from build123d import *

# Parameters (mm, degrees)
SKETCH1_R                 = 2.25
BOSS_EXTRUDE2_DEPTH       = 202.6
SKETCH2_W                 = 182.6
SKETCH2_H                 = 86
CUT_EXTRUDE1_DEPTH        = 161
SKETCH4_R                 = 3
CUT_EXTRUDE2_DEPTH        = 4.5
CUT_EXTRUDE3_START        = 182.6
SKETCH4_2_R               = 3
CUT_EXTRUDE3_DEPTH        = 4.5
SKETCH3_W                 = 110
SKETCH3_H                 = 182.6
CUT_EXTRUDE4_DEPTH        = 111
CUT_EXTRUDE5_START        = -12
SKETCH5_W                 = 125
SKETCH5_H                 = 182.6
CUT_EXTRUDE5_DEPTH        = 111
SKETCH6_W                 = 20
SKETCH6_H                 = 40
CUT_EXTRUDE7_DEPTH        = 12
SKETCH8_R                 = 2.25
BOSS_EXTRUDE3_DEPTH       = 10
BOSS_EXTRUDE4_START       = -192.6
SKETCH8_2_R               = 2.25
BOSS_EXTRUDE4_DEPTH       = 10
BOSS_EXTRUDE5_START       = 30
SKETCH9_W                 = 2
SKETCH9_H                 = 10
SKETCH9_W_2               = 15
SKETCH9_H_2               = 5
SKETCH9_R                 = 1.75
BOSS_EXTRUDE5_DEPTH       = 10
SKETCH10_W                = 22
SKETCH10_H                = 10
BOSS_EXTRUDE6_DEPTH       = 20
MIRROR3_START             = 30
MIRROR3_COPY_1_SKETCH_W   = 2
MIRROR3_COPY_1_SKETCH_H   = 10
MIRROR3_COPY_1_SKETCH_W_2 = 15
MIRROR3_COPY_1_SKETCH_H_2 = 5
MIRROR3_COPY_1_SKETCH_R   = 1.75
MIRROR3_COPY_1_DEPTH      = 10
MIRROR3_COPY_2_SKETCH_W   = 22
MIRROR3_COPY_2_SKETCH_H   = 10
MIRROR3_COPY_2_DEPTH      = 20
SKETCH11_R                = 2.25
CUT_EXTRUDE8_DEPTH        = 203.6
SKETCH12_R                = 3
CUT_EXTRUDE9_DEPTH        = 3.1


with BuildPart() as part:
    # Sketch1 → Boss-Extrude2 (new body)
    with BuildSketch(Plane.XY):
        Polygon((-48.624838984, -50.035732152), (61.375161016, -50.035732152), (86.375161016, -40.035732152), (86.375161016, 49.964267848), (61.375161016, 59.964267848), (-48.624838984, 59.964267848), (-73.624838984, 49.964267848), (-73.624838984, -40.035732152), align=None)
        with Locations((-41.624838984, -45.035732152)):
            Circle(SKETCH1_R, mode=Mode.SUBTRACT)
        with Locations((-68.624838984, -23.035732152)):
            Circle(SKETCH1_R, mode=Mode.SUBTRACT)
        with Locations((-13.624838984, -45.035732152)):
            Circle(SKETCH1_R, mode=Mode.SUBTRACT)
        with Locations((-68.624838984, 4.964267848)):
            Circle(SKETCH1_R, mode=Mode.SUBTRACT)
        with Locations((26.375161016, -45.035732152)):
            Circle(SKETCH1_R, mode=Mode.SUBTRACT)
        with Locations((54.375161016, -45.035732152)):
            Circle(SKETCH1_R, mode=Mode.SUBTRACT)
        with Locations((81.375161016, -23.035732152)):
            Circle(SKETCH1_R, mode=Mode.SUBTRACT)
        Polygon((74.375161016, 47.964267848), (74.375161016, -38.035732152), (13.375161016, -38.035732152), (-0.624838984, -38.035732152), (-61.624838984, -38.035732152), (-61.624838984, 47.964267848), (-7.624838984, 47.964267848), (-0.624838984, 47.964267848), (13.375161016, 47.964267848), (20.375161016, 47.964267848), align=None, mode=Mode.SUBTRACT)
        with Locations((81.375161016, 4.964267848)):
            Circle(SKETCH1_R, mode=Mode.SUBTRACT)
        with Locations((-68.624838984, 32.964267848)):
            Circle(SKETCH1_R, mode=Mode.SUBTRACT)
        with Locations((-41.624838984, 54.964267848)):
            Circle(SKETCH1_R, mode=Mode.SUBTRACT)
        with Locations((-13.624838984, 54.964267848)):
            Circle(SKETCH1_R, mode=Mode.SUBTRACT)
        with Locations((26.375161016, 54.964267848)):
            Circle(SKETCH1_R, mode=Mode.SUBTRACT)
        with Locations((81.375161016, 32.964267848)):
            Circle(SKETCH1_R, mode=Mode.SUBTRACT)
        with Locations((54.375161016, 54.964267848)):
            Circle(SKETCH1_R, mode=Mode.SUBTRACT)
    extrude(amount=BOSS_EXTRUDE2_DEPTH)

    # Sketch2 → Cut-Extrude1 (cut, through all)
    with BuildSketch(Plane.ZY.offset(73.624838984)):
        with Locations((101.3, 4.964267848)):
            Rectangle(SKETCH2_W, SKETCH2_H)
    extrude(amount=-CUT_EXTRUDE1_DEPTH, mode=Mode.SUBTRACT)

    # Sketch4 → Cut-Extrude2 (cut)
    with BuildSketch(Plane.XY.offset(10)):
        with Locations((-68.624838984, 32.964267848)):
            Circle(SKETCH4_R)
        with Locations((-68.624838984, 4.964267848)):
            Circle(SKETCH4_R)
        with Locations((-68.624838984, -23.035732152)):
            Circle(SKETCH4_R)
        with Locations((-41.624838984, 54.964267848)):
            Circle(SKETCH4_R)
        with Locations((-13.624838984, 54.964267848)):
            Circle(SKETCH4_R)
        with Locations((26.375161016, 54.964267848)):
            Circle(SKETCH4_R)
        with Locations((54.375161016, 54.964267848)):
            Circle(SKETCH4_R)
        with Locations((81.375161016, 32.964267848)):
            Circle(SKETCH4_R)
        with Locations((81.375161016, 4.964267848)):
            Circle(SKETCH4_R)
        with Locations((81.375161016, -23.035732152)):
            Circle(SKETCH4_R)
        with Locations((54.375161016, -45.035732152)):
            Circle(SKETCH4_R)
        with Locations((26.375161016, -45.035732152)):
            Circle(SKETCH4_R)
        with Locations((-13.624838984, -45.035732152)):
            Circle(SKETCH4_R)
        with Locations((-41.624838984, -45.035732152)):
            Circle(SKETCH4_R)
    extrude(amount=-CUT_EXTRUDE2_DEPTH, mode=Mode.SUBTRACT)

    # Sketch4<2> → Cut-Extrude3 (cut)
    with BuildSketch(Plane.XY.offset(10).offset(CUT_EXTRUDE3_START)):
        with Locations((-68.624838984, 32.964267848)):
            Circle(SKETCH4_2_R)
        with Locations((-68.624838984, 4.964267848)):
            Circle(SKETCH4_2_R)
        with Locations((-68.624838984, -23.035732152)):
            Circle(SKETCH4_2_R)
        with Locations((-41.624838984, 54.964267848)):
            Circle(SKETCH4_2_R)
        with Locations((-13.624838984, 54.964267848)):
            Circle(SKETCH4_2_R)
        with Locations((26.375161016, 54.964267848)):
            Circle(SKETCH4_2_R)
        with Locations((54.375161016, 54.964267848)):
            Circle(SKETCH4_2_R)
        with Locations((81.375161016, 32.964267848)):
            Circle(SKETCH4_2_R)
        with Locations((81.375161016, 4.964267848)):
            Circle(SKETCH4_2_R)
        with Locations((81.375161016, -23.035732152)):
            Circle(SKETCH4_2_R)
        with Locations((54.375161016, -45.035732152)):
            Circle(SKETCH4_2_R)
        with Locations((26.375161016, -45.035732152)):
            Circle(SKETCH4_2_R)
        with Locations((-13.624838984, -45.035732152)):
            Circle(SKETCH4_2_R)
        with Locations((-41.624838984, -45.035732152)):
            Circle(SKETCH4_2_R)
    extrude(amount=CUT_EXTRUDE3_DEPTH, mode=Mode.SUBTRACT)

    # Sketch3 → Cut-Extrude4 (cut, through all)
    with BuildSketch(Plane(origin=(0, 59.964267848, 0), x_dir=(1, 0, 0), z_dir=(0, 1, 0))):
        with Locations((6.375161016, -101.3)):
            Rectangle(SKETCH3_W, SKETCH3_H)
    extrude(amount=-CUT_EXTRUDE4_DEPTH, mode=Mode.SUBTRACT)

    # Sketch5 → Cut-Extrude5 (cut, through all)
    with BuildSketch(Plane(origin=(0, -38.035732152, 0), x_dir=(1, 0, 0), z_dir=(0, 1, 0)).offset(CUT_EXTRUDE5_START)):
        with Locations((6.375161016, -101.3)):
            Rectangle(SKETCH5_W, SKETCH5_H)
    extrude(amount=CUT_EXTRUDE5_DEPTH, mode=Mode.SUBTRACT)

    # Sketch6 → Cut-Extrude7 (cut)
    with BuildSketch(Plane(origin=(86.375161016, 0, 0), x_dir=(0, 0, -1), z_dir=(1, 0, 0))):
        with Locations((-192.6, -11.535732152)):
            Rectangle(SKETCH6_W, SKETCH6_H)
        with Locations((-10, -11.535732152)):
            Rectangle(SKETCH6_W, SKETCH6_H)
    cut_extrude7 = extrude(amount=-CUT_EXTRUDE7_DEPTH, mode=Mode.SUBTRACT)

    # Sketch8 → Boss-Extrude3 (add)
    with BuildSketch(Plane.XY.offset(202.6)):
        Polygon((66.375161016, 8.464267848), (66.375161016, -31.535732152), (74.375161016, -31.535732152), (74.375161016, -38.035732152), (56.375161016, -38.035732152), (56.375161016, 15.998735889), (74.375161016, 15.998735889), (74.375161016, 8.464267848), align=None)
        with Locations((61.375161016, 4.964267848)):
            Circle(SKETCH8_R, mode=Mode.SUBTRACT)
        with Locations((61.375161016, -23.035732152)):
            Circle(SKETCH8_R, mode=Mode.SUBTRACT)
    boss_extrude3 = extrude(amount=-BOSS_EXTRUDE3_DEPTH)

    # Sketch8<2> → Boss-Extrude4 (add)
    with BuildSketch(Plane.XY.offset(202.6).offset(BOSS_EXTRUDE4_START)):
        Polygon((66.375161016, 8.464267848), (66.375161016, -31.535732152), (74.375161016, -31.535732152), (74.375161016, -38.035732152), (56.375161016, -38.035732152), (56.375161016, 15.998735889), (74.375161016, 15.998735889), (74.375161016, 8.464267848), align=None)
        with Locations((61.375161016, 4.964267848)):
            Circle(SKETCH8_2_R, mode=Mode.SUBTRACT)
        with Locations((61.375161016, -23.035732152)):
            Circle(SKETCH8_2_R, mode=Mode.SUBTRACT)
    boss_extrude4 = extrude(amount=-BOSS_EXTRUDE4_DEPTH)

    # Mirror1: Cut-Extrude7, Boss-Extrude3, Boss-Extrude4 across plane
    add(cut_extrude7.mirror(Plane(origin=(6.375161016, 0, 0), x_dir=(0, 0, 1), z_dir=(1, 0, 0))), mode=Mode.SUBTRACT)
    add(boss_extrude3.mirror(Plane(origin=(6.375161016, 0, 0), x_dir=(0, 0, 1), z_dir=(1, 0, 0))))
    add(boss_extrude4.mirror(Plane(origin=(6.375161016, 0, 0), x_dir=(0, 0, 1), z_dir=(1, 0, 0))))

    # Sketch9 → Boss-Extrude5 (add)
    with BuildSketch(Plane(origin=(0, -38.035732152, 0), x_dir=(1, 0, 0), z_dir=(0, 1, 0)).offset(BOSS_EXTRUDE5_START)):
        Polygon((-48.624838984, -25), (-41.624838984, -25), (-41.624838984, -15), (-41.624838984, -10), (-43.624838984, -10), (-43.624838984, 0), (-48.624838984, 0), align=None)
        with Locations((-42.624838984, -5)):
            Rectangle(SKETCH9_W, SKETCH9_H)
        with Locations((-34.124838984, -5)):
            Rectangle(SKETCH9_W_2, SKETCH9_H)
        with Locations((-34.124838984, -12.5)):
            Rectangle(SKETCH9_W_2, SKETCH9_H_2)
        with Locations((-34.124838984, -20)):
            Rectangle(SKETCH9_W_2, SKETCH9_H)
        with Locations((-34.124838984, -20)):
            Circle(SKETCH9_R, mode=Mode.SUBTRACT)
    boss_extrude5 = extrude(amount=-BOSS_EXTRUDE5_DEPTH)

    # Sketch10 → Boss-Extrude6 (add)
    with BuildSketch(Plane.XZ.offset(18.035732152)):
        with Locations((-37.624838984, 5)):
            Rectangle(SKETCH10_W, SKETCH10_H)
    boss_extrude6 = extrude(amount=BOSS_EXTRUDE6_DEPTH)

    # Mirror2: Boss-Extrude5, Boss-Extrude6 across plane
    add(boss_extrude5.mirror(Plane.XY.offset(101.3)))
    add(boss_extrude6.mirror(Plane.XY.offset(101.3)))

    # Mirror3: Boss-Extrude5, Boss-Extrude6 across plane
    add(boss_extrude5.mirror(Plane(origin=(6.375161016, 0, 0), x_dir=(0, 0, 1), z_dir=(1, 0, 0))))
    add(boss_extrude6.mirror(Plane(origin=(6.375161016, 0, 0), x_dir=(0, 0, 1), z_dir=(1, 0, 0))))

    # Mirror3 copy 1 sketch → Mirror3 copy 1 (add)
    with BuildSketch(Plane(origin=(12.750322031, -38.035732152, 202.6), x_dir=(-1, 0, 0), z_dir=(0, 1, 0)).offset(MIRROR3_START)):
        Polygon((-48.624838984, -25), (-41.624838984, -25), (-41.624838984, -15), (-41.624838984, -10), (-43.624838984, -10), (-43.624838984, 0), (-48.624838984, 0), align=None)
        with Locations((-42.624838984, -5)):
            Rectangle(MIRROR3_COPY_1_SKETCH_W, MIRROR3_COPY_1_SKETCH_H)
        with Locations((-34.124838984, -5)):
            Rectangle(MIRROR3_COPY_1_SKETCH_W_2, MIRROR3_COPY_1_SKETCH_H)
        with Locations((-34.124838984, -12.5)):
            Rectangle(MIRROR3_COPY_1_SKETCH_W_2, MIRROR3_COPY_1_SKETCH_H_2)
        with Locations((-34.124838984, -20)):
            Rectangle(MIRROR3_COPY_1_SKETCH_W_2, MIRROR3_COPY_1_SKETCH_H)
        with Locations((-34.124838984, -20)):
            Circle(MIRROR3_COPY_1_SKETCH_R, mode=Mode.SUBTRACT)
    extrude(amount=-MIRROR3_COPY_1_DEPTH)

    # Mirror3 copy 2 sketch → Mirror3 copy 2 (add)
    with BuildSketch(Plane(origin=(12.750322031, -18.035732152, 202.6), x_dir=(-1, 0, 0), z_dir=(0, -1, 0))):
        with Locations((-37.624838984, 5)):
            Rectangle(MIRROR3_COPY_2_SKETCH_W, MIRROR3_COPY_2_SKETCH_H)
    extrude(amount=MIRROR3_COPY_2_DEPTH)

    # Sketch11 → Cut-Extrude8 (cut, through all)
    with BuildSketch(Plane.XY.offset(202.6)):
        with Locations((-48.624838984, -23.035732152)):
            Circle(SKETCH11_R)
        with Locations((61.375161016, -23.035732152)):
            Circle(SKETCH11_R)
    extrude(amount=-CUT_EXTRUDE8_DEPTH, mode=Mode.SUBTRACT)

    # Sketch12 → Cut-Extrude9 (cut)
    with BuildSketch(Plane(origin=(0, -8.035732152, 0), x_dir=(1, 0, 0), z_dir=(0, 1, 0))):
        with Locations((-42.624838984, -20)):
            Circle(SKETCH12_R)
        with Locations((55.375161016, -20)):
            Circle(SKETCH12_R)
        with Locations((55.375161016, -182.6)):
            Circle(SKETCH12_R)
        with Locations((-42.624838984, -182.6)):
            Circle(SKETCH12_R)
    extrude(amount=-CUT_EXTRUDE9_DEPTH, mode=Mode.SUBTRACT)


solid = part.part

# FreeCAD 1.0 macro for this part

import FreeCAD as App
import Part
import Sketcher
from FreeCAD import Vector

doc = App.newDocument("Part")
body = doc.addObject("PartDesign::Body", "Body")

# Sketch on XY plane
sketch1 = body.newObject("Sketcher::SketchObject", "Sketch")
sketch1.AttachmentSupport = (doc.getObject("XY_Plane"), [""])
sketch1.MapMode = "FlatFace"
sketch1.addGeometry([
    Part.LineSegment(Vector(-48.624839, -50.035732, 0), Vector(61.375161, -50.035732, 0)),  # 0
    Part.LineSegment(Vector(61.375161, -50.035732, 0), Vector(86.375161, -40.035732, 0)),  # 1
    Part.LineSegment(Vector(86.375161, -40.035732, 0), Vector(86.375161, 49.964268, 0)),  # 2
    Part.LineSegment(Vector(86.375161, 49.964268, 0), Vector(61.375161, 59.964268, 0)),  # 3
    Part.LineSegment(Vector(61.375161, 59.964268, 0), Vector(-48.624839, 59.964268, 0)),  # 4
    Part.LineSegment(Vector(-48.624839, 59.964268, 0), Vector(-73.624839, 49.964268, 0)),  # 5
    Part.LineSegment(Vector(-73.624839, 49.964268, 0), Vector(-73.624839, -40.035732, 0)),  # 6
    Part.LineSegment(Vector(-73.624839, -40.035732, 0), Vector(-48.624839, -50.035732, 0)),  # 7
    Part.Circle(Vector(-41.624839, -45.035732, 0), Vector(0, 0, 1), 2.25),  # 8
    Part.Circle(Vector(-68.624839, -23.035732, 0), Vector(0, 0, 1), 2.25),  # 9
    Part.Circle(Vector(-13.624839, -45.035732, 0), Vector(0, 0, 1), 2.25),  # 10
    Part.Circle(Vector(26.375161, -45.035732, 0), Vector(0, 0, 1), 2.25),  # 11
    Part.Circle(Vector(54.375161, -45.035732, 0), Vector(0, 0, 1), 2.25),  # 12
    Part.Circle(Vector(81.375161, -23.035732, 0), Vector(0, 0, 1), 2.25),  # 13
    Part.Circle(Vector(-68.624839, 4.964268, 0), Vector(0, 0, 1), 2.25),  # 14
    Part.Circle(Vector(-68.624839, 32.964268, 0), Vector(0, 0, 1), 2.25),  # 15
    Part.Circle(Vector(-41.624839, 54.964268, 0), Vector(0, 0, 1), 2.25),  # 16
    Part.Circle(Vector(-13.624839, 54.964268, 0), Vector(0, 0, 1), 2.25),  # 17
    Part.LineSegment(Vector(-61.624839, 47.964268, 0), Vector(74.375161, 47.964268, 0)),  # 18
    Part.LineSegment(Vector(74.375161, 47.964268, 0), Vector(74.375161, -38.035732, 0)),  # 19
    Part.LineSegment(Vector(74.375161, -38.035732, 0), Vector(-61.624839, -38.035732, 0)),  # 20
    Part.LineSegment(Vector(-61.624839, -38.035732, 0), Vector(-61.624839, 47.964268, 0)),  # 21
    Part.Circle(Vector(81.375161, 4.964268, 0), Vector(0, 0, 1), 2.25),  # 22
    Part.Circle(Vector(26.375161, 54.964268, 0), Vector(0, 0, 1), 2.25),  # 23
    Part.Circle(Vector(81.375161, 32.964268, 0), Vector(0, 0, 1), 2.25),  # 24
    Part.Circle(Vector(54.375161, 54.964268, 0), Vector(0, 0, 1), 2.25),  # 25
], False)
sketch1.addConstraint([
    Sketcher.Constraint("Coincident", 0, 2, 1, 1),
    Sketcher.Constraint("Coincident", 1, 2, 2, 1),
    Sketcher.Constraint("Coincident", 2, 2, 3, 1),
    Sketcher.Constraint("Coincident", 3, 2, 4, 1),
    Sketcher.Constraint("Coincident", 4, 2, 5, 1),
    Sketcher.Constraint("Coincident", 5, 2, 6, 1),
    Sketcher.Constraint("Coincident", 6, 2, 7, 1),
    Sketcher.Constraint("Coincident", 7, 2, 0, 1),
    Sketcher.Constraint("Coincident", 18, 2, 19, 1),
    Sketcher.Constraint("Coincident", 19, 2, 20, 1),
    Sketcher.Constraint("Coincident", 20, 2, 21, 1),
    Sketcher.Constraint("Coincident", 21, 2, 18, 1),
    Sketcher.Constraint("Horizontal", 0),
    Sketcher.Constraint("Vertical", 2),
    Sketcher.Constraint("Horizontal", 4),
    Sketcher.Constraint("Vertical", 6),
    Sketcher.Constraint("Horizontal", 18),
    Sketcher.Constraint("Vertical", 19),
    Sketcher.Constraint("Horizontal", 20),
    Sketcher.Constraint("Vertical", 21),
    Sketcher.Constraint("Equal", 8, 9),
    Sketcher.Constraint("Equal", 9, 10),
    Sketcher.Constraint("Equal", 10, 11),
    Sketcher.Constraint("Equal", 11, 12),
    Sketcher.Constraint("Equal", 12, 13),
    Sketcher.Constraint("Equal", 13, 14),
    Sketcher.Constraint("Equal", 14, 15),
    Sketcher.Constraint("Equal", 15, 16),
    Sketcher.Constraint("Equal", 16, 17),
    Sketcher.Constraint("Equal", 17, 22),
    Sketcher.Constraint("Equal", 22, 23),
    Sketcher.Constraint("Equal", 23, 24),
    Sketcher.Constraint("Equal", 24, 25),
    Sketcher.Constraint("Parallel", 1, 5),
    Sketcher.Constraint("Parallel", 3, 7),
    Sketcher.Constraint("Horizontal", 8, 3, 10, 3),
    Sketcher.Constraint("Horizontal", 10, 3, 11, 3),
    Sketcher.Constraint("Horizontal", 11, 3, 12, 3),
    Sketcher.Constraint("Horizontal", 9, 3, 13, 3),
    Sketcher.Constraint("Horizontal", 16, 3, 17, 3),
    Sketcher.Constraint("Horizontal", 14, 3, 22, 3),
    Sketcher.Constraint("Horizontal", 17, 3, 23, 3),
    Sketcher.Constraint("Horizontal", 15, 3, 24, 3),
    Sketcher.Constraint("Horizontal", 23, 3, 25, 3),
    Sketcher.Constraint("Horizontal", 2, 2, 5, 2),
    Sketcher.Constraint("Horizontal", 1, 2, 6, 2),
    Sketcher.Constraint("Vertical", 9, 3, 14, 3),
    Sketcher.Constraint("Vertical", 14, 3, 15, 3),
    Sketcher.Constraint("Vertical", 8, 3, 16, 3),
    Sketcher.Constraint("Vertical", 10, 3, 17, 3),
    Sketcher.Constraint("Vertical", 13, 3, 22, 3),
    Sketcher.Constraint("Vertical", 11, 3, 23, 3),
    Sketcher.Constraint("Vertical", 22, 3, 24, 3),
    Sketcher.Constraint("Vertical", 12, 3, 25, 3),
    Sketcher.Constraint("Vertical", 0, 2, 3, 2),
    Sketcher.Constraint("Vertical", 4, 2, 7, 2),
    Sketcher.Constraint("Diameter", 8, 4.5),
    Sketcher.Constraint("DistanceX", 0, 1, 0, 2, 110.0),
    Sketcher.Constraint("DistanceX", 18, 1, 18, 2, 136.0),
    Sketcher.Constraint("DistanceY", 2, 1, 2, 2, 90.0),
    Sketcher.Constraint("DistanceY", 19, 2, 19, 1, 86.0),
    Sketcher.Constraint("DistanceX", 9, 3, 8, 3, 27.0),
    Sketcher.Constraint("DistanceY", 8, 3, 9, 3, 22.0),
    Sketcher.Constraint("DistanceX", 8, 3, 10, 3, 28.0),
    Sketcher.Constraint("DistanceX", 10, 3, 11, 3, 40.0),
    Sketcher.Constraint("DistanceX", 11, 3, 12, 3, 28.0),
    Sketcher.Constraint("DistanceX", 12, 3, 13, 3, 27.0),
    Sketcher.Constraint("DistanceY", 9, 3, 14, 3, 28.0),
    Sketcher.Constraint("DistanceY", 14, 3, 15, 3, 28.0),
    Sketcher.Constraint("DistanceY", 15, 3, 16, 3, 22.0),
    Sketcher.Constraint("DistanceX", 12, 3, 0, 2, 7.0),
    Sketcher.Constraint("DistanceY", 0, 2, 12, 3, 5.0),
    Sketcher.Constraint("DistanceX", 13, 3, 1, 2, 5.0),
    Sketcher.Constraint("DistanceY", 1, 2, 13, 3, 17.0),
    Sketcher.Constraint("DistanceX", 18, 2, 2, 2, 12.0),
    Sketcher.Constraint("DistanceY", 18, 2, 2, 2, 2.0),
    Sketcher.Constraint("DistanceX", 8, 3, -1, 1, 41.624839),
    Sketcher.Constraint("DistanceY", 8, 3, -1, 1, 45.035732),
])
pad1 = body.newObject("PartDesign::Pad", "Pad")
pad1.Profile = sketch1
pad1.Length = 202.6

# Sketch on YZ plane
sketch2 = body.newObject("Sketcher::SketchObject", "Sketch001")
sketch2.AttachmentSupport = (doc.getObject("YZ_Plane"), [""])
sketch2.MapMode = "FlatFace"
sketch2.AttachmentOffset = App.Placement(Vector(0, 0, -73.624839), App.Rotation())
sketch2.addGeometry([
    Part.LineSegment(Vector(47.964268, 10, 0), Vector(-38.035732, 10, 0)),
    Part.LineSegment(Vector(-38.035732, 10, 0), Vector(-38.035732, 192.6, 0)),
    Part.LineSegment(Vector(-38.035732, 192.6, 0), Vector(47.964268, 192.6, 0)),
    Part.LineSegment(Vector(47.964268, 192.6, 0), Vector(47.964268, 10, 0)),
], False)
sketch2.addConstraint([
    Sketcher.Constraint("Coincident", 0, 2, 1, 1),
    Sketcher.Constraint("Coincident", 1, 2, 2, 1),
    Sketcher.Constraint("Coincident", 2, 2, 3, 1),
    Sketcher.Constraint("Coincident", 3, 2, 0, 1),
    Sketcher.Constraint("Horizontal", 0),
    Sketcher.Constraint("Vertical", 1),
    Sketcher.Constraint("Horizontal", 2),
    Sketcher.Constraint("Vertical", 3),
    Sketcher.Constraint("DistanceX", 0, 2, 0, 1, 86.0),
    Sketcher.Constraint("DistanceY", 1, 1, 1, 2, 182.6),
    Sketcher.Constraint("DistanceY", -1, 1, 0, 2, 10.0),
    Sketcher.Constraint("DistanceX", 0, 2, -1, 1, 38.035732),
])
pocket1 = body.newObject("PartDesign::Pocket", "Pocket")
pocket1.Profile = sketch2
pocket1.Type = "ThroughAll"
pocket1.Reversed = True

# Sketch on XY plane
sketch3 = body.newObject("Sketcher::SketchObject", "Sketch002")
sketch3.AttachmentSupport = (doc.getObject("XY_Plane"), [""])
sketch3.MapMode = "FlatFace"
sketch3.AttachmentOffset = App.Placement(Vector(0, 0, 10), App.Rotation())
sketch3.addGeometry([
    Part.Circle(Vector(-68.624839, 32.964268, 0), Vector(0, 0, 1), 3),  # 0
    Part.Circle(Vector(-68.624839, 4.964268, 0), Vector(0, 0, 1), 3),  # 1
    Part.Circle(Vector(-68.624839, -23.035732, 0), Vector(0, 0, 1), 3),  # 2
    Part.Circle(Vector(-41.624839, 54.964268, 0), Vector(0, 0, 1), 3),  # 3
    Part.Circle(Vector(-13.624839, 54.964268, 0), Vector(0, 0, 1), 3),  # 4
    Part.Circle(Vector(26.375161, 54.964268, 0), Vector(0, 0, 1), 3),  # 5
    Part.Circle(Vector(54.375161, 54.964268, 0), Vector(0, 0, 1), 3),  # 6
    Part.Circle(Vector(81.375161, 32.964268, 0), Vector(0, 0, 1), 3),  # 7
    Part.Circle(Vector(81.375161, 4.964268, 0), Vector(0, 0, 1), 3),  # 8
    Part.Circle(Vector(81.375161, -23.035732, 0), Vector(0, 0, 1), 3),  # 9
    Part.Circle(Vector(54.375161, -45.035732, 0), Vector(0, 0, 1), 3),  # 10
    Part.Circle(Vector(26.375161, -45.035732, 0), Vector(0, 0, 1), 3),  # 11
    Part.Circle(Vector(-13.624839, -45.035732, 0), Vector(0, 0, 1), 3),  # 12
    Part.Circle(Vector(-41.624839, -45.035732, 0), Vector(0, 0, 1), 3),  # 13
], False)
sketch3.addConstraint([
    Sketcher.Constraint("Equal", 0, 1),
    Sketcher.Constraint("Equal", 1, 2),
    Sketcher.Constraint("Equal", 2, 3),
    Sketcher.Constraint("Equal", 3, 4),
    Sketcher.Constraint("Equal", 4, 5),
    Sketcher.Constraint("Equal", 5, 6),
    Sketcher.Constraint("Equal", 6, 7),
    Sketcher.Constraint("Equal", 7, 8),
    Sketcher.Constraint("Equal", 8, 9),
    Sketcher.Constraint("Equal", 9, 10),
    Sketcher.Constraint("Equal", 10, 11),
    Sketcher.Constraint("Equal", 11, 12),
    Sketcher.Constraint("Equal", 12, 13),
    Sketcher.Constraint("Horizontal", 3, 3, 4, 3),
    Sketcher.Constraint("Horizontal", 4, 3, 5, 3),
    Sketcher.Constraint("Horizontal", 5, 3, 6, 3),
    Sketcher.Constraint("Horizontal", 0, 3, 7, 3),
    Sketcher.Constraint("Horizontal", 1, 3, 8, 3),
    Sketcher.Constraint("Horizontal", 2, 3, 9, 3),
    Sketcher.Constraint("Horizontal", 10, 3, 11, 3),
    Sketcher.Constraint("Horizontal", 11, 3, 12, 3),
    Sketcher.Constraint("Horizontal", 12, 3, 13, 3),
    Sketcher.Constraint("Vertical", 0, 3, 1, 3),
    Sketcher.Constraint("Vertical", 1, 3, 2, 3),
    Sketcher.Constraint("Vertical", 7, 3, 8, 3),
    Sketcher.Constraint("Vertical", 8, 3, 9, 3),
    Sketcher.Constraint("Vertical", 6, 3, 10, 3),
    Sketcher.Constraint("Vertical", 5, 3, 11, 3),
    Sketcher.Constraint("Vertical", 4, 3, 12, 3),
    Sketcher.Constraint("Vertical", 3, 3, 13, 3),
    Sketcher.Constraint("Diameter", 0, 6.0),
    Sketcher.Constraint("DistanceY", 1, 3, 0, 3, 28.0),
    Sketcher.Constraint("DistanceY", 2, 3, 1, 3, 28.0),
    Sketcher.Constraint("DistanceX", 0, 3, 3, 3, 27.0),
    Sketcher.Constraint("DistanceY", 0, 3, 3, 3, 22.0),
    Sketcher.Constraint("DistanceX", 3, 3, 4, 3, 28.0),
    Sketcher.Constraint("DistanceX", 4, 3, 5, 3, 40.0),
    Sketcher.Constraint("DistanceX", 5, 3, 6, 3, 28.0),
    Sketcher.Constraint("DistanceX", 6, 3, 7, 3, 27.0),
    Sketcher.Constraint("DistanceY", 10, 3, 9, 3, 22.0),
    Sketcher.Constraint("DistanceX", 0, 3, -1, 1, 68.624839),
    Sketcher.Constraint("DistanceY", -1, 1, 0, 3, 32.964268),
])
pocket2 = body.newObject("PartDesign::Pocket", "Pocket001")
pocket2.Profile = sketch3
pocket2.Length = 4.5

# Sketch on XY plane
sketch4 = body.newObject("Sketcher::SketchObject", "Sketch003")
sketch4.AttachmentSupport = (doc.getObject("XY_Plane"), [""])
sketch4.MapMode = "FlatFace"
sketch4.AttachmentOffset = App.Placement(Vector(0, 0, 192.6), App.Rotation())
sketch4.addGeometry([
    Part.Circle(Vector(-68.624839, 32.964268, 0), Vector(0, 0, 1), 3),  # 0
    Part.Circle(Vector(-68.624839, 4.964268, 0), Vector(0, 0, 1), 3),  # 1
    Part.Circle(Vector(-68.624839, -23.035732, 0), Vector(0, 0, 1), 3),  # 2
    Part.Circle(Vector(-41.624839, 54.964268, 0), Vector(0, 0, 1), 3),  # 3
    Part.Circle(Vector(-13.624839, 54.964268, 0), Vector(0, 0, 1), 3),  # 4
    Part.Circle(Vector(26.375161, 54.964268, 0), Vector(0, 0, 1), 3),  # 5
    Part.Circle(Vector(54.375161, 54.964268, 0), Vector(0, 0, 1), 3),  # 6
    Part.Circle(Vector(81.375161, 32.964268, 0), Vector(0, 0, 1), 3),  # 7
    Part.Circle(Vector(81.375161, 4.964268, 0), Vector(0, 0, 1), 3),  # 8
    Part.Circle(Vector(81.375161, -23.035732, 0), Vector(0, 0, 1), 3),  # 9
    Part.Circle(Vector(54.375161, -45.035732, 0), Vector(0, 0, 1), 3),  # 10
    Part.Circle(Vector(26.375161, -45.035732, 0), Vector(0, 0, 1), 3),  # 11
    Part.Circle(Vector(-13.624839, -45.035732, 0), Vector(0, 0, 1), 3),  # 12
    Part.Circle(Vector(-41.624839, -45.035732, 0), Vector(0, 0, 1), 3),  # 13
], False)
sketch4.addConstraint([
    Sketcher.Constraint("Equal", 0, 1),
    Sketcher.Constraint("Equal", 1, 2),
    Sketcher.Constraint("Equal", 2, 3),
    Sketcher.Constraint("Equal", 3, 4),
    Sketcher.Constraint("Equal", 4, 5),
    Sketcher.Constraint("Equal", 5, 6),
    Sketcher.Constraint("Equal", 6, 7),
    Sketcher.Constraint("Equal", 7, 8),
    Sketcher.Constraint("Equal", 8, 9),
    Sketcher.Constraint("Equal", 9, 10),
    Sketcher.Constraint("Equal", 10, 11),
    Sketcher.Constraint("Equal", 11, 12),
    Sketcher.Constraint("Equal", 12, 13),
    Sketcher.Constraint("Horizontal", 3, 3, 4, 3),
    Sketcher.Constraint("Horizontal", 4, 3, 5, 3),
    Sketcher.Constraint("Horizontal", 5, 3, 6, 3),
    Sketcher.Constraint("Horizontal", 0, 3, 7, 3),
    Sketcher.Constraint("Horizontal", 1, 3, 8, 3),
    Sketcher.Constraint("Horizontal", 2, 3, 9, 3),
    Sketcher.Constraint("Horizontal", 10, 3, 11, 3),
    Sketcher.Constraint("Horizontal", 11, 3, 12, 3),
    Sketcher.Constraint("Horizontal", 12, 3, 13, 3),
    Sketcher.Constraint("Vertical", 0, 3, 1, 3),
    Sketcher.Constraint("Vertical", 1, 3, 2, 3),
    Sketcher.Constraint("Vertical", 7, 3, 8, 3),
    Sketcher.Constraint("Vertical", 8, 3, 9, 3),
    Sketcher.Constraint("Vertical", 6, 3, 10, 3),
    Sketcher.Constraint("Vertical", 5, 3, 11, 3),
    Sketcher.Constraint("Vertical", 4, 3, 12, 3),
    Sketcher.Constraint("Vertical", 3, 3, 13, 3),
    Sketcher.Constraint("Diameter", 0, 6.0),
    Sketcher.Constraint("DistanceY", 1, 3, 0, 3, 28.0),
    Sketcher.Constraint("DistanceY", 2, 3, 1, 3, 28.0),
    Sketcher.Constraint("DistanceX", 0, 3, 3, 3, 27.0),
    Sketcher.Constraint("DistanceY", 0, 3, 3, 3, 22.0),
    Sketcher.Constraint("DistanceX", 3, 3, 4, 3, 28.0),
    Sketcher.Constraint("DistanceX", 4, 3, 5, 3, 40.0),
    Sketcher.Constraint("DistanceX", 5, 3, 6, 3, 28.0),
    Sketcher.Constraint("DistanceX", 6, 3, 7, 3, 27.0),
    Sketcher.Constraint("DistanceY", 10, 3, 9, 3, 22.0),
    Sketcher.Constraint("DistanceX", 0, 3, -1, 1, 68.624839),
    Sketcher.Constraint("DistanceY", -1, 1, 0, 3, 32.964268),
])
pocket3 = body.newObject("PartDesign::Pocket", "Pocket002")
pocket3.Profile = sketch4
pocket3.Length = 4.5
pocket3.Reversed = True

# Sketch on XZ plane
sketch5 = body.newObject("Sketcher::SketchObject", "Sketch004")
sketch5.AttachmentSupport = (doc.getObject("XZ_Plane"), [""])
sketch5.MapMode = "FlatFace"
sketch5.AttachmentOffset = App.Placement(Vector(0, 0, -59.964268), App.Rotation())
sketch5.addGeometry([
    Part.LineSegment(Vector(-48.624839, 10, 0), Vector(-48.624839, 192.6, 0)),
    Part.LineSegment(Vector(-48.624839, 192.6, 0), Vector(61.375161, 192.6, 0)),
    Part.LineSegment(Vector(61.375161, 192.6, 0), Vector(61.375161, 10, 0)),
    Part.LineSegment(Vector(61.375161, 10, 0), Vector(-48.624839, 10, 0)),
], False)
sketch5.addConstraint([
    Sketcher.Constraint("Coincident", 0, 2, 1, 1),
    Sketcher.Constraint("Coincident", 1, 2, 2, 1),
    Sketcher.Constraint("Coincident", 2, 2, 3, 1),
    Sketcher.Constraint("Coincident", 3, 2, 0, 1),
    Sketcher.Constraint("Vertical", 0),
    Sketcher.Constraint("Horizontal", 1),
    Sketcher.Constraint("Vertical", 2),
    Sketcher.Constraint("Horizontal", 3),
    Sketcher.Constraint("DistanceX", 1, 1, 1, 2, 110.0),
    Sketcher.Constraint("DistanceY", 0, 1, 0, 2, 182.6),
    Sketcher.Constraint("DistanceY", -1, 1, 2, 2, 10.0),
    Sketcher.Constraint("DistanceX", 0, 2, -1, 1, 48.624839),
])
pocket4 = body.newObject("PartDesign::Pocket", "Pocket003")
pocket4.Profile = sketch5
pocket4.Type = "ThroughAll"
pocket4.Reversed = True

# Sketch on XZ plane
sketch6 = body.newObject("Sketcher::SketchObject", "Sketch005")
sketch6.AttachmentSupport = (doc.getObject("XZ_Plane"), [""])
sketch6.MapMode = "FlatFace"
sketch6.AttachmentOffset = App.Placement(Vector(0, 0, 50.035732), App.Rotation())
sketch6.addGeometry([
    Part.LineSegment(Vector(-56.124839, 10, 0), Vector(-56.124839, 192.6, 0)),
    Part.LineSegment(Vector(-56.124839, 192.6, 0), Vector(68.875161, 192.6, 0)),
    Part.LineSegment(Vector(68.875161, 192.6, 0), Vector(68.875161, 10, 0)),
    Part.LineSegment(Vector(68.875161, 10, 0), Vector(-56.124839, 10, 0)),
], False)
sketch6.addConstraint([
    Sketcher.Constraint("Coincident", 0, 2, 1, 1),
    Sketcher.Constraint("Coincident", 1, 2, 2, 1),
    Sketcher.Constraint("Coincident", 2, 2, 3, 1),
    Sketcher.Constraint("Coincident", 3, 2, 0, 1),
    Sketcher.Constraint("Vertical", 0),
    Sketcher.Constraint("Horizontal", 1),
    Sketcher.Constraint("Vertical", 2),
    Sketcher.Constraint("Horizontal", 3),
    Sketcher.Constraint("DistanceX", 1, 1, 1, 2, 125.0),
    Sketcher.Constraint("DistanceY", 0, 1, 0, 2, 182.6),
    Sketcher.Constraint("DistanceY", -1, 1, 2, 2, 10.0),
    Sketcher.Constraint("DistanceX", 0, 2, -1, 1, 56.124839),
])
pocket5 = body.newObject("PartDesign::Pocket", "Pocket004")
pocket5.Profile = sketch6
pocket5.Type = "ThroughAll"

# Sketch on YZ plane
sketch7 = body.newObject("Sketcher::SketchObject", "Sketch006")
sketch7.AttachmentSupport = (doc.getObject("YZ_Plane"), [""])
sketch7.MapMode = "FlatFace"
sketch7.AttachmentOffset = App.Placement(Vector(0, 0, 86.375161), App.Rotation())
sketch7.addGeometry([
    Part.LineSegment(Vector(8.464268, 202.6, 0), Vector(-31.535732, 202.6, 0)),  # 0
    Part.LineSegment(Vector(-31.535732, 202.6, 0), Vector(-31.535732, 182.6, 0)),  # 1
    Part.LineSegment(Vector(-31.535732, 182.6, 0), Vector(8.464268, 182.6, 0)),  # 2
    Part.LineSegment(Vector(8.464268, 182.6, 0), Vector(8.464268, 202.6, 0)),  # 3
    Part.LineSegment(Vector(8.464268, 20, 0), Vector(-31.535732, 20, 0)),  # 4
    Part.LineSegment(Vector(-31.535732, 20, 0), Vector(-31.535732, 0, 0)),  # 5
    Part.LineSegment(Vector(-31.535732, 0, 0), Vector(8.464268, 0, 0)),  # 6
    Part.LineSegment(Vector(8.464268, 0, 0), Vector(8.464268, 20, 0)),  # 7
], False)
sketch7.addConstraint([
    Sketcher.Constraint("Coincident", 0, 2, 1, 1),
    Sketcher.Constraint("Coincident", 1, 2, 2, 1),
    Sketcher.Constraint("Coincident", 2, 2, 3, 1),
    Sketcher.Constraint("Coincident", 3, 2, 0, 1),
    Sketcher.Constraint("Coincident", 4, 2, 5, 1),
    Sketcher.Constraint("Coincident", 5, 2, 6, 1),
    Sketcher.Constraint("Coincident", 6, 2, 7, 1),
    Sketcher.Constraint("Coincident", 7, 2, 4, 1),
    Sketcher.Constraint("Horizontal", 0),
    Sketcher.Constraint("Vertical", 1),
    Sketcher.Constraint("Horizontal", 2),
    Sketcher.Constraint("Vertical", 3),
    Sketcher.Constraint("Horizontal", 4),
    Sketcher.Constraint("Vertical", 5),
    Sketcher.Constraint("Horizontal", 6),
    Sketcher.Constraint("Vertical", 7),
    Sketcher.Constraint("PointOnObject", 5, 2, -1),
    Sketcher.Constraint("Vertical", 1, 2, 4, 2),
    Sketcher.Constraint("Vertical", 3, 2, 6, 2),
    Sketcher.Constraint("Equal", 3, 5),
    Sketcher.Constraint("DistanceX", 0, 2, 0, 1, 40.0),
    Sketcher.Constraint("DistanceY", 1, 2, 1, 1, 20.0),
    Sketcher.Constraint("DistanceY", -1, 1, 0, 2, 202.6),
    Sketcher.Constraint("DistanceX", 0, 2, -1, 1, 31.535732),
])
pocket6 = body.newObject("PartDesign::Pocket", "Pocket005")
pocket6.Profile = sketch7
pocket6.Length = 12

# Sketch on XY plane
sketch8 = body.newObject("Sketcher::SketchObject", "Sketch007")
sketch8.AttachmentSupport = (doc.getObject("XY_Plane"), [""])
sketch8.MapMode = "FlatFace"
sketch8.AttachmentOffset = App.Placement(Vector(0, 0, 202.6), App.Rotation())
sketch8.addGeometry([
    Part.LineSegment(Vector(66.375161, -31.535732, 0), Vector(66.375161, 8.464268, 0)),  # 0
    Part.LineSegment(Vector(66.375161, 8.464268, 0), Vector(74.375161, 8.464268, 0)),  # 1
    Part.LineSegment(Vector(74.375161, 8.464268, 0), Vector(74.375161, 15.998736, 0)),  # 2
    Part.LineSegment(Vector(74.375161, 15.998736, 0), Vector(56.375161, 15.998736, 0)),  # 3
    Part.LineSegment(Vector(56.375161, 15.998736, 0), Vector(56.375161, -38.035732, 0)),  # 4
    Part.LineSegment(Vector(56.375161, -38.035732, 0), Vector(74.375161, -38.035732, 0)),  # 5
    Part.LineSegment(Vector(74.375161, -38.035732, 0), Vector(74.375161, -31.535732, 0)),  # 6
    Part.LineSegment(Vector(74.375161, -31.535732, 0), Vector(66.375161, -31.535732, 0)),  # 7
    Part.Circle(Vector(61.375161, -23.035732, 0), Vector(0, 0, 1), 2.25),  # 8
    Part.Circle(Vector(61.375161, 4.964268, 0), Vector(0, 0, 1), 2.25),  # 9
], False)
sketch8.addConstraint([
    Sketcher.Constraint("Coincident", 0, 2, 1, 1),
    Sketcher.Constraint("Coincident", 1, 2, 2, 1),
    Sketcher.Constraint("Coincident", 2, 2, 3, 1),
    Sketcher.Constraint("Coincident", 3, 2, 4, 1),
    Sketcher.Constraint("Coincident", 4, 2, 5, 1),
    Sketcher.Constraint("Coincident", 5, 2, 6, 1),
    Sketcher.Constraint("Coincident", 6, 2, 7, 1),
    Sketcher.Constraint("Coincident", 7, 2, 0, 1),
    Sketcher.Constraint("Vertical", 0),
    Sketcher.Constraint("Horizontal", 1),
    Sketcher.Constraint("Vertical", 2),
    Sketcher.Constraint("Horizontal", 3),
    Sketcher.Constraint("Vertical", 4),
    Sketcher.Constraint("Horizontal", 5),
    Sketcher.Constraint("Vertical", 6),
    Sketcher.Constraint("Horizontal", 7),
    Sketcher.Constraint("Equal", 8, 9),
    Sketcher.Constraint("Vertical", 8, 3, 9, 3),
    Sketcher.Constraint("Vertical", 2, 2, 5, 2),
    Sketcher.Constraint("Diameter", 8, 4.5),
    Sketcher.Constraint("DistanceX", 1, 1, 1, 2, 8.0),
    Sketcher.Constraint("DistanceX", 3, 2, 3, 1, 18.0),
    Sketcher.Constraint("DistanceY", 0, 1, 0, 2, 40.0),
    Sketcher.Constraint("DistanceY", 6, 1, 6, 2, 6.5),
    Sketcher.Constraint("DistanceY", 8, 3, 9, 3, 28.0),
    Sketcher.Constraint("DistanceX", 9, 3, 0, 2, 5.0),
    Sketcher.Constraint("DistanceY", 4, 2, 8, 3, 15.0),
    Sketcher.Constraint("DistanceY", 2, 1, 2, 2, 7.534468),
    Sketcher.Constraint("DistanceX", -1, 1, 8, 3, 61.375161),
    Sketcher.Constraint("DistanceY", 8, 3, -1, 1, 23.035732),
])
pad2 = body.newObject("PartDesign::Pad", "Pad001")
pad2.Profile = sketch8
pad2.Length = 10
pad2.Reversed = True

# Sketch on XY plane
sketch9 = body.newObject("Sketcher::SketchObject", "Sketch008")
sketch9.AttachmentSupport = (doc.getObject("XY_Plane"), [""])
sketch9.MapMode = "FlatFace"
sketch9.AttachmentOffset = App.Placement(Vector(0, 0, 10), App.Rotation())
sketch9.addGeometry([
    Part.LineSegment(Vector(66.375161, -31.535732, 0), Vector(66.375161, 8.464268, 0)),  # 0
    Part.LineSegment(Vector(66.375161, 8.464268, 0), Vector(74.375161, 8.464268, 0)),  # 1
    Part.LineSegment(Vector(74.375161, 8.464268, 0), Vector(74.375161, 15.998736, 0)),  # 2
    Part.LineSegment(Vector(74.375161, 15.998736, 0), Vector(56.375161, 15.998736, 0)),  # 3
    Part.LineSegment(Vector(56.375161, 15.998736, 0), Vector(56.375161, -38.035732, 0)),  # 4
    Part.LineSegment(Vector(56.375161, -38.035732, 0), Vector(74.375161, -38.035732, 0)),  # 5
    Part.LineSegment(Vector(74.375161, -38.035732, 0), Vector(74.375161, -31.535732, 0)),  # 6
    Part.LineSegment(Vector(74.375161, -31.535732, 0), Vector(66.375161, -31.535732, 0)),  # 7
    Part.Circle(Vector(61.375161, -23.035732, 0), Vector(0, 0, 1), 2.25),  # 8
    Part.Circle(Vector(61.375161, 4.964268, 0), Vector(0, 0, 1), 2.25),  # 9
], False)
sketch9.addConstraint([
    Sketcher.Constraint("Coincident", 0, 2, 1, 1),
    Sketcher.Constraint("Coincident", 1, 2, 2, 1),
    Sketcher.Constraint("Coincident", 2, 2, 3, 1),
    Sketcher.Constraint("Coincident", 3, 2, 4, 1),
    Sketcher.Constraint("Coincident", 4, 2, 5, 1),
    Sketcher.Constraint("Coincident", 5, 2, 6, 1),
    Sketcher.Constraint("Coincident", 6, 2, 7, 1),
    Sketcher.Constraint("Coincident", 7, 2, 0, 1),
    Sketcher.Constraint("Vertical", 0),
    Sketcher.Constraint("Horizontal", 1),
    Sketcher.Constraint("Vertical", 2),
    Sketcher.Constraint("Horizontal", 3),
    Sketcher.Constraint("Vertical", 4),
    Sketcher.Constraint("Horizontal", 5),
    Sketcher.Constraint("Vertical", 6),
    Sketcher.Constraint("Horizontal", 7),
    Sketcher.Constraint("Equal", 8, 9),
    Sketcher.Constraint("Vertical", 8, 3, 9, 3),
    Sketcher.Constraint("Vertical", 2, 2, 5, 2),
    Sketcher.Constraint("Diameter", 8, 4.5),
    Sketcher.Constraint("DistanceX", 1, 1, 1, 2, 8.0),
    Sketcher.Constraint("DistanceX", 3, 2, 3, 1, 18.0),
    Sketcher.Constraint("DistanceY", 0, 1, 0, 2, 40.0),
    Sketcher.Constraint("DistanceY", 6, 1, 6, 2, 6.5),
    Sketcher.Constraint("DistanceY", 8, 3, 9, 3, 28.0),
    Sketcher.Constraint("DistanceX", 9, 3, 0, 2, 5.0),
    Sketcher.Constraint("DistanceY", 4, 2, 8, 3, 15.0),
    Sketcher.Constraint("DistanceY", 2, 1, 2, 2, 7.534468),
    Sketcher.Constraint("DistanceX", -1, 1, 8, 3, 61.375161),
    Sketcher.Constraint("DistanceY", 8, 3, -1, 1, 23.035732),
])
pad3 = body.newObject("PartDesign::Pad", "Pad002")
pad3.Profile = sketch9
pad3.Length = 10
pad3.Reversed = True
doc.recompute()

datumplane = body.newObject("PartDesign::Plane", "DatumPlane")
datumplane.AttachmentSupport = (doc.getObject("YZ_Plane"), [""])
datumplane.MapMode = "FlatFace"
datumplane.AttachmentOffset = App.Placement(Vector(0, 0, 6.375161), App.Rotation())
mirrored = body.newObject("PartDesign::Mirrored", "Mirrored")
mirrored.Originals = [pocket6, pad2, pad3]
mirrored.MirrorPlane = (datumplane, [""])
body.Tip = mirrored

# Sketch on XZ plane
sketch10 = body.newObject("Sketcher::SketchObject", "Sketch009")
sketch10.AttachmentSupport = (doc.getObject("XZ_Plane"), [""])
sketch10.MapMode = "FlatFace"
sketch10.AttachmentOffset = App.Placement(Vector(0, 0, 8.035732), App.Rotation())
sketch10.addGeometry([
    Part.LineSegment(Vector(-48.624839, 25, 0), Vector(-26.624839, 25, 0)),  # 0
    Part.LineSegment(Vector(-26.624839, 25, 0), Vector(-26.624839, 0, 0)),  # 1
    Part.LineSegment(Vector(-26.624839, 0, 0), Vector(-48.624839, 0, 0)),  # 2
    Part.LineSegment(Vector(-48.624839, 0, 0), Vector(-48.624839, 25, 0)),  # 3
    Part.Circle(Vector(-34.124839, 20, 0), Vector(0, 0, 1), 1.75),  # 4
], False)
sketch10.addConstraint([
    Sketcher.Constraint("Coincident", 0, 2, 1, 1),
    Sketcher.Constraint("Coincident", 1, 2, 2, 1),
    Sketcher.Constraint("Coincident", 2, 2, 3, 1),
    Sketcher.Constraint("Coincident", 3, 2, 0, 1),
    Sketcher.Constraint("Horizontal", 0),
    Sketcher.Constraint("Vertical", 1),
    Sketcher.Constraint("Horizontal", 2),
    Sketcher.Constraint("Vertical", 3),
    Sketcher.Constraint("PointOnObject", 1, 2, -1),
    Sketcher.Constraint("Diameter", 4, 3.5),
    Sketcher.Constraint("DistanceX", 0, 1, 0, 2, 22.0),
    Sketcher.Constraint("DistanceY", 1, 2, 1, 1, 25.0),
    Sketcher.Constraint("DistanceY", -1, 1, 4, 3, 20.0),
    Sketcher.Constraint("DistanceX", 4, 3, 0, 2, 7.5),
    Sketcher.Constraint("DistanceX", 4, 3, -1, 1, 34.124839),
])
pad4 = body.newObject("PartDesign::Pad", "Pad003")
pad4.Profile = sketch10
pad4.Length = 10

# Sketch on XZ plane
sketch11 = body.newObject("Sketcher::SketchObject", "Sketch010")
sketch11.AttachmentSupport = (doc.getObject("XZ_Plane"), [""])
sketch11.MapMode = "FlatFace"
sketch11.AttachmentOffset = App.Placement(Vector(0, 0, 18.035732), App.Rotation())
sketch11.addGeometry([
    Part.LineSegment(Vector(-48.624839, 10, 0), Vector(-48.624839, 0, 0)),
    Part.LineSegment(Vector(-48.624839, 0, 0), Vector(-26.624839, 0, 0)),
    Part.LineSegment(Vector(-26.624839, 0, 0), Vector(-26.624839, 10, 0)),
    Part.LineSegment(Vector(-26.624839, 10, 0), Vector(-48.624839, 10, 0)),
], False)
sketch11.addConstraint([
    Sketcher.Constraint("Coincident", 0, 2, 1, 1),
    Sketcher.Constraint("Coincident", 1, 2, 2, 1),
    Sketcher.Constraint("Coincident", 2, 2, 3, 1),
    Sketcher.Constraint("Coincident", 3, 2, 0, 1),
    Sketcher.Constraint("Vertical", 0),
    Sketcher.Constraint("Horizontal", 1),
    Sketcher.Constraint("Vertical", 2),
    Sketcher.Constraint("Horizontal", 3),
    Sketcher.Constraint("PointOnObject", 0, 2, -1),
    Sketcher.Constraint("DistanceX", 1, 1, 1, 2, 22.0),
    Sketcher.Constraint("DistanceY", 0, 2, 0, 1, 10.0),
    Sketcher.Constraint("DistanceX", 0, 2, -1, 1, 48.624839),
])
pad5 = body.newObject("PartDesign::Pad", "Pad004")
pad5.Profile = sketch11
pad5.Length = 20
doc.recompute()

datumplane2 = body.newObject("PartDesign::Plane", "DatumPlane001")
datumplane2.AttachmentSupport = (doc.getObject("XY_Plane"), [""])
datumplane2.MapMode = "FlatFace"
datumplane2.AttachmentOffset = App.Placement(Vector(0, 0, 101.3), App.Rotation())
mirrored2 = body.newObject("PartDesign::Mirrored", "Mirrored001")
mirrored2.Originals = [pad4, pad5]
mirrored2.MirrorPlane = (datumplane2, [""])
body.Tip = mirrored2
doc.recompute()

datumplane3 = body.newObject("PartDesign::Plane", "DatumPlane002")
datumplane3.AttachmentSupport = (doc.getObject("YZ_Plane"), [""])
datumplane3.MapMode = "FlatFace"
datumplane3.AttachmentOffset = App.Placement(Vector(0, 0, 6.375161), App.Rotation())
mirrored3 = body.newObject("PartDesign::Mirrored", "Mirrored002")
mirrored3.Originals = [pad4, pad5]
mirrored3.MirrorPlane = (datumplane3, [""])
body.Tip = mirrored3

# Sketch on XZ plane
sketch12 = body.newObject("Sketcher::SketchObject", "Sketch011")
sketch12.AttachmentSupport = (doc.getObject("XZ_Plane"), [""])
sketch12.MapMode = "FlatFace"
sketch12.AttachmentOffset = App.Placement(Vector(0, 0, 8.035732), App.Rotation())
sketch12.addGeometry([
    Part.LineSegment(Vector(61.375161, 177.6, 0), Vector(39.375161, 177.6, 0)),  # 0
    Part.LineSegment(Vector(39.375161, 177.6, 0), Vector(39.375161, 202.6, 0)),  # 1
    Part.LineSegment(Vector(39.375161, 202.6, 0), Vector(61.375161, 202.6, 0)),  # 2
    Part.LineSegment(Vector(61.375161, 202.6, 0), Vector(61.375161, 177.6, 0)),  # 3
    Part.Circle(Vector(46.875161, 182.6, 0), Vector(0, 0, 1), 1.75),  # 4
], False)
sketch12.addConstraint([
    Sketcher.Constraint("Coincident", 0, 2, 1, 1),
    Sketcher.Constraint("Coincident", 1, 2, 2, 1),
    Sketcher.Constraint("Coincident", 2, 2, 3, 1),
    Sketcher.Constraint("Coincident", 3, 2, 0, 1),
    Sketcher.Constraint("Horizontal", 0),
    Sketcher.Constraint("Vertical", 1),
    Sketcher.Constraint("Horizontal", 2),
    Sketcher.Constraint("Vertical", 3),
    Sketcher.Constraint("Diameter", 4, 3.5),
    Sketcher.Constraint("DistanceX", 0, 2, 0, 1, 22.0),
    Sketcher.Constraint("DistanceY", 1, 1, 1, 2, 25.0),
    Sketcher.Constraint("DistanceY", 0, 2, 4, 3, 5.0),
    Sketcher.Constraint("DistanceY", -1, 1, 4, 3, 182.6),
    Sketcher.Constraint("DistanceX", 0, 2, 4, 3, 7.5),
    Sketcher.Constraint("DistanceX", -1, 1, 4, 3, 46.875161),
])
pad6 = body.newObject("PartDesign::Pad", "Pad005")
pad6.Profile = sketch12
pad6.Length = 10

# Sketch on XZ plane
sketch13 = body.newObject("Sketcher::SketchObject", "Sketch012")
sketch13.AttachmentSupport = (doc.getObject("XZ_Plane"), [""])
sketch13.MapMode = "FlatFace"
sketch13.AttachmentOffset = App.Placement(Vector(0, 0, 18.035732), App.Rotation())
sketch13.addGeometry([
    Part.LineSegment(Vector(61.375161, 192.6, 0), Vector(61.375161, 202.6, 0)),
    Part.LineSegment(Vector(61.375161, 202.6, 0), Vector(39.375161, 202.6, 0)),
    Part.LineSegment(Vector(39.375161, 202.6, 0), Vector(39.375161, 192.6, 0)),
    Part.LineSegment(Vector(39.375161, 192.6, 0), Vector(61.375161, 192.6, 0)),
], False)
sketch13.addConstraint([
    Sketcher.Constraint("Coincident", 0, 2, 1, 1),
    Sketcher.Constraint("Coincident", 1, 2, 2, 1),
    Sketcher.Constraint("Coincident", 2, 2, 3, 1),
    Sketcher.Constraint("Coincident", 3, 2, 0, 1),
    Sketcher.Constraint("Vertical", 0),
    Sketcher.Constraint("Horizontal", 1),
    Sketcher.Constraint("Vertical", 2),
    Sketcher.Constraint("Horizontal", 3),
    Sketcher.Constraint("DistanceX", 1, 2, 1, 1, 22.0),
    Sketcher.Constraint("DistanceY", 0, 1, 0, 2, 10.0),
    Sketcher.Constraint("DistanceY", -1, 1, 0, 2, 202.6),
    Sketcher.Constraint("DistanceX", -1, 1, 0, 2, 61.375161),
])
pad7 = body.newObject("PartDesign::Pad", "Pad006")
pad7.Profile = sketch13
pad7.Length = 20

# Sketch on XY plane
sketch14 = body.newObject("Sketcher::SketchObject", "Sketch013")
sketch14.AttachmentSupport = (doc.getObject("XY_Plane"), [""])
sketch14.MapMode = "FlatFace"
sketch14.AttachmentOffset = App.Placement(Vector(0, 0, 202.6), App.Rotation())
sketch14.addGeometry([
    Part.Circle(Vector(-48.624839, -23.035732, 0), Vector(0, 0, 1), 2.25),
    Part.Circle(Vector(61.375161, -23.035732, 0), Vector(0, 0, 1), 2.25),
], False)
sketch14.addConstraint([
    Sketcher.Constraint("Equal", 0, 1),
    Sketcher.Constraint("Horizontal", 0, 3, 1, 3),
    Sketcher.Constraint("Diameter", 0, 4.5),
    Sketcher.Constraint("DistanceX", 0, 3, 1, 3, 110.0),
    Sketcher.Constraint("DistanceX", 0, 3, -1, 1, 48.624839),
    Sketcher.Constraint("DistanceY", 0, 3, -1, 1, 23.035732),
])
pocket7 = body.newObject("PartDesign::Pocket", "Pocket006")
pocket7.Profile = sketch14
pocket7.Type = "ThroughAll"

# Sketch on XZ plane
sketch15 = body.newObject("Sketcher::SketchObject", "Sketch014")
sketch15.AttachmentSupport = (doc.getObject("XZ_Plane"), [""])
sketch15.MapMode = "FlatFace"
sketch15.AttachmentOffset = App.Placement(Vector(0, 0, 8.035732), App.Rotation())
sketch15.addGeometry([
    Part.Circle(Vector(-42.624839, 20, 0), Vector(0, 0, 1), 3),
    Part.Circle(Vector(55.375161, 20, 0), Vector(0, 0, 1), 3),
    Part.Circle(Vector(55.375161, 182.6, 0), Vector(0, 0, 1), 3),
    Part.Circle(Vector(-42.624839, 182.6, 0), Vector(0, 0, 1), 3),
], False)
sketch15.addConstraint([
    Sketcher.Constraint("Equal", 0, 1),
    Sketcher.Constraint("Equal", 1, 2),
    Sketcher.Constraint("Equal", 2, 3),
    Sketcher.Constraint("Horizontal", 0, 3, 1, 3),
    Sketcher.Constraint("Horizontal", 2, 3, 3, 3),
    Sketcher.Constraint("Vertical", 1, 3, 2, 3),
    Sketcher.Constraint("Vertical", 0, 3, 3, 3),
    Sketcher.Constraint("Diameter", 0, 6.0),
    Sketcher.Constraint("DistanceY", -1, 1, 0, 3, 20.0),
    Sketcher.Constraint("DistanceX", 0, 3, 1, 3, 98.0),
    Sketcher.Constraint("DistanceY", -1, 1, 2, 3, 182.6),
    Sketcher.Constraint("DistanceX", 0, 3, -1, 1, 42.624839),
])
pocket8 = body.newObject("PartDesign::Pocket", "Pocket007")
pocket8.Profile = sketch15
pocket8.Length = 3.1
pocket8.Reversed = True

doc.recompute()
